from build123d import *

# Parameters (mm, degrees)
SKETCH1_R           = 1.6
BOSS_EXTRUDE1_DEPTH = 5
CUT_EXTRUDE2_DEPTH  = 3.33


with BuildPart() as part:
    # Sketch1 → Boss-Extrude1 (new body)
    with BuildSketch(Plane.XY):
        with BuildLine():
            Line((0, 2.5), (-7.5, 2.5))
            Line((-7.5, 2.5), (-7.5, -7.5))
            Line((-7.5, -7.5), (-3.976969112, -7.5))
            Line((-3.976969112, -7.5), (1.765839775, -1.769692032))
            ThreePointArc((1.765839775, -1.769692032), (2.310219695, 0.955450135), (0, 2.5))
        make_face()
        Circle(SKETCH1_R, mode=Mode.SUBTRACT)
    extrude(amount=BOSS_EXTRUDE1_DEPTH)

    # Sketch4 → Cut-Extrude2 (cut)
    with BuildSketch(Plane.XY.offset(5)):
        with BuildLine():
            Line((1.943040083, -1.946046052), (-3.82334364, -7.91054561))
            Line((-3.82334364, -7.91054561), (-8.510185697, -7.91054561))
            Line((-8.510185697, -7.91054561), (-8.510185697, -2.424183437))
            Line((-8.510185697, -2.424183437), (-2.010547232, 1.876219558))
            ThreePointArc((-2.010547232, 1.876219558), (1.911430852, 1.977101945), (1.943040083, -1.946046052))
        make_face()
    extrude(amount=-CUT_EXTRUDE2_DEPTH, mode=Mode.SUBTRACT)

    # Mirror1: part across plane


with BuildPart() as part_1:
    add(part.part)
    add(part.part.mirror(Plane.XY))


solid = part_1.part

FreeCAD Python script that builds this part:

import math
import FreeCAD as App
import Part
import Sketcher
from FreeCAD import Vector

doc = App.newDocument("Part")
body = doc.addObject("PartDesign::Body", "Body")

sketch1 = body.newObject("Sketcher::SketchObject", "Sketch")
sketch1.AttachmentSupport = (doc.getObject("XY_Plane"), [""])
sketch1.MapMode = "FlatFace"
sketch1.addGeometry([
    Part.LineSegment(Vector(0, 2.5, 0), Vector(-7.5, 2.5, 0)),
    Part.LineSegment(Vector(-7.5, 2.5, 0), Vector(-7.5, -7.5, 0)),
    Part.LineSegment(Vector(-7.5, -7.5, 0), Vector(-4, -7.5, 0)),
    Part.LineSegment(Vector(-4, -7.5, 0), Vector(1.8, -1.8, 0)),
    Part.ArcOfCircle(Part.Circle(Vector(0, 0, 0), Vector(0, 0, 1), 2.5), math.radians(-45), math.radians(90)),
    Part.Circle(Vector(0, 0, 0), Vector(0, 0, 1), 1.6),
], False)
sketch1.addConstraint([
    Sketcher.Constraint("Coincident", 0, 2, 1, 1),
    Sketcher.Constraint("Coincident", 1, 2, 2, 1),
    Sketcher.Constraint("Coincident", 2, 2, 3, 1),
    Sketcher.Constraint("Tangent", 3, 2, 4, 1),
    Sketcher.Constraint("Tangent", 4, 2, 0, 1),
    Sketcher.Constraint("Horizontal", 0),
    Sketcher.Constraint("Vertical", 1),
    Sketcher.Constraint("Horizontal", 2),
    Sketcher.Constraint("Coincident", 4, 3, -1, 1),
    Sketcher.Constraint("Coincident", 5, 3, -1, 1),
    Sketcher.Constraint("Diameter", 5, 3.2),
    Sketcher.Constraint("Radius", 4, 2.5),
    Sketcher.Constraint("DistanceY", 1, 2, 1, 1, 10.0),
    Sketcher.Constraint("DistanceX", 0, 2, 0, 1, 7.5),
    Sketcher.Constraint("DistanceX", 2, 1, 2, 2, 3.523031),
])
pad1 = body.newObject("PartDesign::Pad", "Pad")
pad1.Profile = sketch1
pad1.Length = 5

sketch2 = body.newObject("Sketcher::SketchObject", "Sketch001")
sketch2.AttachmentSupport = (doc.getObject("XY_Plane"), [""])
sketch2.MapMode = "FlatFace"
sketch2.AttachmentOffset = App.Placement(Vector(0, 0, 5), App.Rotation())
sketch2.addGeometry([
    Part.LineSegment(Vector(-3.8, -7.9, 0), Vector(1.9, -1.9, 0)),
    Part.ArcOfCircle(Part.Circle(Vector(0, 0, 0), Vector(0, 0, 1), 2.8), math.radians(-45), math.radians(137)),
    Part.LineSegment(Vector(-2, 1.9, 0), Vector(-8.5, -2.4, 0)),
    Part.LineSegment(Vector(-8.5, -2.4, 0), Vector(-8.5, -7.9, 0)),
    Part.LineSegment(Vector(-8.5, -7.9, 0), Vector(-3.8, -7.9, 0)),
], False)
sketch2.addConstraint([
    Sketcher.Constraint("Coincident", 0, 2, 1, 1),
    Sketcher.Constraint("Coincident", 1, 2, 2, 1),
    Sketcher.Constraint("Coincident", 2, 2, 3, 1),
    Sketcher.Constraint("Coincident", 3, 2, 4, 1),
    Sketcher.Constraint("Coincident", 4, 2, 0, 1),
    Sketcher.Constraint("Vertical", 3),
    Sketcher.Constraint("Horizontal", 4),
    Sketcher.Constraint("Coincident", 1, 3, -1, 1),
    Sketcher.Constraint("Radius", 1, 2.75),
    Sketcher.Constraint("DistanceY", 3, 2, 0, 2, 5.9645),
    Sketcher.Constraint("Distance", 0, 8.29617),
    Sketcher.Constraint("DistanceX", 4, 1, 4, 2, 4.686842),
    Sketcher.Constraint("DistanceY", 3, 2, 3, 1, 5.486362),
    Sketcher.Constraint("DistanceX", -1, 1, 0, 2, 1.94304),
    Sketcher.Constraint("DistanceY", -1, 1, 1, 2, 1.87622),
])
pocket1 = body.newObject("PartDesign::Pocket", "Pocket")
pocket1.Profile = sketch2
pocket1.Length = 3.33
body2 = doc.addObject("PartDesign::Body", "Body001")
doc.recompute()

body2.BaseFeature = body
doc.recompute()

mirroring = doc.addObject("Part::Mirroring", "Mirroring")
mirroring.Source = body
mirroring.Base = Vector(0, 0, 0)
mirroring.Normal = Vector(0, 0, 1)
body3 = doc.addObject("PartDesign::Body", "Body002")
body3.BaseFeature = mirroring
boolean = body2.newObject("PartDesign::Boolean", "Boolean")
boolean.Type = "Fuse"
boolean.addObjects([body3])
doc.recompute()
mirroring.Visibility = False

doc.recompute()
